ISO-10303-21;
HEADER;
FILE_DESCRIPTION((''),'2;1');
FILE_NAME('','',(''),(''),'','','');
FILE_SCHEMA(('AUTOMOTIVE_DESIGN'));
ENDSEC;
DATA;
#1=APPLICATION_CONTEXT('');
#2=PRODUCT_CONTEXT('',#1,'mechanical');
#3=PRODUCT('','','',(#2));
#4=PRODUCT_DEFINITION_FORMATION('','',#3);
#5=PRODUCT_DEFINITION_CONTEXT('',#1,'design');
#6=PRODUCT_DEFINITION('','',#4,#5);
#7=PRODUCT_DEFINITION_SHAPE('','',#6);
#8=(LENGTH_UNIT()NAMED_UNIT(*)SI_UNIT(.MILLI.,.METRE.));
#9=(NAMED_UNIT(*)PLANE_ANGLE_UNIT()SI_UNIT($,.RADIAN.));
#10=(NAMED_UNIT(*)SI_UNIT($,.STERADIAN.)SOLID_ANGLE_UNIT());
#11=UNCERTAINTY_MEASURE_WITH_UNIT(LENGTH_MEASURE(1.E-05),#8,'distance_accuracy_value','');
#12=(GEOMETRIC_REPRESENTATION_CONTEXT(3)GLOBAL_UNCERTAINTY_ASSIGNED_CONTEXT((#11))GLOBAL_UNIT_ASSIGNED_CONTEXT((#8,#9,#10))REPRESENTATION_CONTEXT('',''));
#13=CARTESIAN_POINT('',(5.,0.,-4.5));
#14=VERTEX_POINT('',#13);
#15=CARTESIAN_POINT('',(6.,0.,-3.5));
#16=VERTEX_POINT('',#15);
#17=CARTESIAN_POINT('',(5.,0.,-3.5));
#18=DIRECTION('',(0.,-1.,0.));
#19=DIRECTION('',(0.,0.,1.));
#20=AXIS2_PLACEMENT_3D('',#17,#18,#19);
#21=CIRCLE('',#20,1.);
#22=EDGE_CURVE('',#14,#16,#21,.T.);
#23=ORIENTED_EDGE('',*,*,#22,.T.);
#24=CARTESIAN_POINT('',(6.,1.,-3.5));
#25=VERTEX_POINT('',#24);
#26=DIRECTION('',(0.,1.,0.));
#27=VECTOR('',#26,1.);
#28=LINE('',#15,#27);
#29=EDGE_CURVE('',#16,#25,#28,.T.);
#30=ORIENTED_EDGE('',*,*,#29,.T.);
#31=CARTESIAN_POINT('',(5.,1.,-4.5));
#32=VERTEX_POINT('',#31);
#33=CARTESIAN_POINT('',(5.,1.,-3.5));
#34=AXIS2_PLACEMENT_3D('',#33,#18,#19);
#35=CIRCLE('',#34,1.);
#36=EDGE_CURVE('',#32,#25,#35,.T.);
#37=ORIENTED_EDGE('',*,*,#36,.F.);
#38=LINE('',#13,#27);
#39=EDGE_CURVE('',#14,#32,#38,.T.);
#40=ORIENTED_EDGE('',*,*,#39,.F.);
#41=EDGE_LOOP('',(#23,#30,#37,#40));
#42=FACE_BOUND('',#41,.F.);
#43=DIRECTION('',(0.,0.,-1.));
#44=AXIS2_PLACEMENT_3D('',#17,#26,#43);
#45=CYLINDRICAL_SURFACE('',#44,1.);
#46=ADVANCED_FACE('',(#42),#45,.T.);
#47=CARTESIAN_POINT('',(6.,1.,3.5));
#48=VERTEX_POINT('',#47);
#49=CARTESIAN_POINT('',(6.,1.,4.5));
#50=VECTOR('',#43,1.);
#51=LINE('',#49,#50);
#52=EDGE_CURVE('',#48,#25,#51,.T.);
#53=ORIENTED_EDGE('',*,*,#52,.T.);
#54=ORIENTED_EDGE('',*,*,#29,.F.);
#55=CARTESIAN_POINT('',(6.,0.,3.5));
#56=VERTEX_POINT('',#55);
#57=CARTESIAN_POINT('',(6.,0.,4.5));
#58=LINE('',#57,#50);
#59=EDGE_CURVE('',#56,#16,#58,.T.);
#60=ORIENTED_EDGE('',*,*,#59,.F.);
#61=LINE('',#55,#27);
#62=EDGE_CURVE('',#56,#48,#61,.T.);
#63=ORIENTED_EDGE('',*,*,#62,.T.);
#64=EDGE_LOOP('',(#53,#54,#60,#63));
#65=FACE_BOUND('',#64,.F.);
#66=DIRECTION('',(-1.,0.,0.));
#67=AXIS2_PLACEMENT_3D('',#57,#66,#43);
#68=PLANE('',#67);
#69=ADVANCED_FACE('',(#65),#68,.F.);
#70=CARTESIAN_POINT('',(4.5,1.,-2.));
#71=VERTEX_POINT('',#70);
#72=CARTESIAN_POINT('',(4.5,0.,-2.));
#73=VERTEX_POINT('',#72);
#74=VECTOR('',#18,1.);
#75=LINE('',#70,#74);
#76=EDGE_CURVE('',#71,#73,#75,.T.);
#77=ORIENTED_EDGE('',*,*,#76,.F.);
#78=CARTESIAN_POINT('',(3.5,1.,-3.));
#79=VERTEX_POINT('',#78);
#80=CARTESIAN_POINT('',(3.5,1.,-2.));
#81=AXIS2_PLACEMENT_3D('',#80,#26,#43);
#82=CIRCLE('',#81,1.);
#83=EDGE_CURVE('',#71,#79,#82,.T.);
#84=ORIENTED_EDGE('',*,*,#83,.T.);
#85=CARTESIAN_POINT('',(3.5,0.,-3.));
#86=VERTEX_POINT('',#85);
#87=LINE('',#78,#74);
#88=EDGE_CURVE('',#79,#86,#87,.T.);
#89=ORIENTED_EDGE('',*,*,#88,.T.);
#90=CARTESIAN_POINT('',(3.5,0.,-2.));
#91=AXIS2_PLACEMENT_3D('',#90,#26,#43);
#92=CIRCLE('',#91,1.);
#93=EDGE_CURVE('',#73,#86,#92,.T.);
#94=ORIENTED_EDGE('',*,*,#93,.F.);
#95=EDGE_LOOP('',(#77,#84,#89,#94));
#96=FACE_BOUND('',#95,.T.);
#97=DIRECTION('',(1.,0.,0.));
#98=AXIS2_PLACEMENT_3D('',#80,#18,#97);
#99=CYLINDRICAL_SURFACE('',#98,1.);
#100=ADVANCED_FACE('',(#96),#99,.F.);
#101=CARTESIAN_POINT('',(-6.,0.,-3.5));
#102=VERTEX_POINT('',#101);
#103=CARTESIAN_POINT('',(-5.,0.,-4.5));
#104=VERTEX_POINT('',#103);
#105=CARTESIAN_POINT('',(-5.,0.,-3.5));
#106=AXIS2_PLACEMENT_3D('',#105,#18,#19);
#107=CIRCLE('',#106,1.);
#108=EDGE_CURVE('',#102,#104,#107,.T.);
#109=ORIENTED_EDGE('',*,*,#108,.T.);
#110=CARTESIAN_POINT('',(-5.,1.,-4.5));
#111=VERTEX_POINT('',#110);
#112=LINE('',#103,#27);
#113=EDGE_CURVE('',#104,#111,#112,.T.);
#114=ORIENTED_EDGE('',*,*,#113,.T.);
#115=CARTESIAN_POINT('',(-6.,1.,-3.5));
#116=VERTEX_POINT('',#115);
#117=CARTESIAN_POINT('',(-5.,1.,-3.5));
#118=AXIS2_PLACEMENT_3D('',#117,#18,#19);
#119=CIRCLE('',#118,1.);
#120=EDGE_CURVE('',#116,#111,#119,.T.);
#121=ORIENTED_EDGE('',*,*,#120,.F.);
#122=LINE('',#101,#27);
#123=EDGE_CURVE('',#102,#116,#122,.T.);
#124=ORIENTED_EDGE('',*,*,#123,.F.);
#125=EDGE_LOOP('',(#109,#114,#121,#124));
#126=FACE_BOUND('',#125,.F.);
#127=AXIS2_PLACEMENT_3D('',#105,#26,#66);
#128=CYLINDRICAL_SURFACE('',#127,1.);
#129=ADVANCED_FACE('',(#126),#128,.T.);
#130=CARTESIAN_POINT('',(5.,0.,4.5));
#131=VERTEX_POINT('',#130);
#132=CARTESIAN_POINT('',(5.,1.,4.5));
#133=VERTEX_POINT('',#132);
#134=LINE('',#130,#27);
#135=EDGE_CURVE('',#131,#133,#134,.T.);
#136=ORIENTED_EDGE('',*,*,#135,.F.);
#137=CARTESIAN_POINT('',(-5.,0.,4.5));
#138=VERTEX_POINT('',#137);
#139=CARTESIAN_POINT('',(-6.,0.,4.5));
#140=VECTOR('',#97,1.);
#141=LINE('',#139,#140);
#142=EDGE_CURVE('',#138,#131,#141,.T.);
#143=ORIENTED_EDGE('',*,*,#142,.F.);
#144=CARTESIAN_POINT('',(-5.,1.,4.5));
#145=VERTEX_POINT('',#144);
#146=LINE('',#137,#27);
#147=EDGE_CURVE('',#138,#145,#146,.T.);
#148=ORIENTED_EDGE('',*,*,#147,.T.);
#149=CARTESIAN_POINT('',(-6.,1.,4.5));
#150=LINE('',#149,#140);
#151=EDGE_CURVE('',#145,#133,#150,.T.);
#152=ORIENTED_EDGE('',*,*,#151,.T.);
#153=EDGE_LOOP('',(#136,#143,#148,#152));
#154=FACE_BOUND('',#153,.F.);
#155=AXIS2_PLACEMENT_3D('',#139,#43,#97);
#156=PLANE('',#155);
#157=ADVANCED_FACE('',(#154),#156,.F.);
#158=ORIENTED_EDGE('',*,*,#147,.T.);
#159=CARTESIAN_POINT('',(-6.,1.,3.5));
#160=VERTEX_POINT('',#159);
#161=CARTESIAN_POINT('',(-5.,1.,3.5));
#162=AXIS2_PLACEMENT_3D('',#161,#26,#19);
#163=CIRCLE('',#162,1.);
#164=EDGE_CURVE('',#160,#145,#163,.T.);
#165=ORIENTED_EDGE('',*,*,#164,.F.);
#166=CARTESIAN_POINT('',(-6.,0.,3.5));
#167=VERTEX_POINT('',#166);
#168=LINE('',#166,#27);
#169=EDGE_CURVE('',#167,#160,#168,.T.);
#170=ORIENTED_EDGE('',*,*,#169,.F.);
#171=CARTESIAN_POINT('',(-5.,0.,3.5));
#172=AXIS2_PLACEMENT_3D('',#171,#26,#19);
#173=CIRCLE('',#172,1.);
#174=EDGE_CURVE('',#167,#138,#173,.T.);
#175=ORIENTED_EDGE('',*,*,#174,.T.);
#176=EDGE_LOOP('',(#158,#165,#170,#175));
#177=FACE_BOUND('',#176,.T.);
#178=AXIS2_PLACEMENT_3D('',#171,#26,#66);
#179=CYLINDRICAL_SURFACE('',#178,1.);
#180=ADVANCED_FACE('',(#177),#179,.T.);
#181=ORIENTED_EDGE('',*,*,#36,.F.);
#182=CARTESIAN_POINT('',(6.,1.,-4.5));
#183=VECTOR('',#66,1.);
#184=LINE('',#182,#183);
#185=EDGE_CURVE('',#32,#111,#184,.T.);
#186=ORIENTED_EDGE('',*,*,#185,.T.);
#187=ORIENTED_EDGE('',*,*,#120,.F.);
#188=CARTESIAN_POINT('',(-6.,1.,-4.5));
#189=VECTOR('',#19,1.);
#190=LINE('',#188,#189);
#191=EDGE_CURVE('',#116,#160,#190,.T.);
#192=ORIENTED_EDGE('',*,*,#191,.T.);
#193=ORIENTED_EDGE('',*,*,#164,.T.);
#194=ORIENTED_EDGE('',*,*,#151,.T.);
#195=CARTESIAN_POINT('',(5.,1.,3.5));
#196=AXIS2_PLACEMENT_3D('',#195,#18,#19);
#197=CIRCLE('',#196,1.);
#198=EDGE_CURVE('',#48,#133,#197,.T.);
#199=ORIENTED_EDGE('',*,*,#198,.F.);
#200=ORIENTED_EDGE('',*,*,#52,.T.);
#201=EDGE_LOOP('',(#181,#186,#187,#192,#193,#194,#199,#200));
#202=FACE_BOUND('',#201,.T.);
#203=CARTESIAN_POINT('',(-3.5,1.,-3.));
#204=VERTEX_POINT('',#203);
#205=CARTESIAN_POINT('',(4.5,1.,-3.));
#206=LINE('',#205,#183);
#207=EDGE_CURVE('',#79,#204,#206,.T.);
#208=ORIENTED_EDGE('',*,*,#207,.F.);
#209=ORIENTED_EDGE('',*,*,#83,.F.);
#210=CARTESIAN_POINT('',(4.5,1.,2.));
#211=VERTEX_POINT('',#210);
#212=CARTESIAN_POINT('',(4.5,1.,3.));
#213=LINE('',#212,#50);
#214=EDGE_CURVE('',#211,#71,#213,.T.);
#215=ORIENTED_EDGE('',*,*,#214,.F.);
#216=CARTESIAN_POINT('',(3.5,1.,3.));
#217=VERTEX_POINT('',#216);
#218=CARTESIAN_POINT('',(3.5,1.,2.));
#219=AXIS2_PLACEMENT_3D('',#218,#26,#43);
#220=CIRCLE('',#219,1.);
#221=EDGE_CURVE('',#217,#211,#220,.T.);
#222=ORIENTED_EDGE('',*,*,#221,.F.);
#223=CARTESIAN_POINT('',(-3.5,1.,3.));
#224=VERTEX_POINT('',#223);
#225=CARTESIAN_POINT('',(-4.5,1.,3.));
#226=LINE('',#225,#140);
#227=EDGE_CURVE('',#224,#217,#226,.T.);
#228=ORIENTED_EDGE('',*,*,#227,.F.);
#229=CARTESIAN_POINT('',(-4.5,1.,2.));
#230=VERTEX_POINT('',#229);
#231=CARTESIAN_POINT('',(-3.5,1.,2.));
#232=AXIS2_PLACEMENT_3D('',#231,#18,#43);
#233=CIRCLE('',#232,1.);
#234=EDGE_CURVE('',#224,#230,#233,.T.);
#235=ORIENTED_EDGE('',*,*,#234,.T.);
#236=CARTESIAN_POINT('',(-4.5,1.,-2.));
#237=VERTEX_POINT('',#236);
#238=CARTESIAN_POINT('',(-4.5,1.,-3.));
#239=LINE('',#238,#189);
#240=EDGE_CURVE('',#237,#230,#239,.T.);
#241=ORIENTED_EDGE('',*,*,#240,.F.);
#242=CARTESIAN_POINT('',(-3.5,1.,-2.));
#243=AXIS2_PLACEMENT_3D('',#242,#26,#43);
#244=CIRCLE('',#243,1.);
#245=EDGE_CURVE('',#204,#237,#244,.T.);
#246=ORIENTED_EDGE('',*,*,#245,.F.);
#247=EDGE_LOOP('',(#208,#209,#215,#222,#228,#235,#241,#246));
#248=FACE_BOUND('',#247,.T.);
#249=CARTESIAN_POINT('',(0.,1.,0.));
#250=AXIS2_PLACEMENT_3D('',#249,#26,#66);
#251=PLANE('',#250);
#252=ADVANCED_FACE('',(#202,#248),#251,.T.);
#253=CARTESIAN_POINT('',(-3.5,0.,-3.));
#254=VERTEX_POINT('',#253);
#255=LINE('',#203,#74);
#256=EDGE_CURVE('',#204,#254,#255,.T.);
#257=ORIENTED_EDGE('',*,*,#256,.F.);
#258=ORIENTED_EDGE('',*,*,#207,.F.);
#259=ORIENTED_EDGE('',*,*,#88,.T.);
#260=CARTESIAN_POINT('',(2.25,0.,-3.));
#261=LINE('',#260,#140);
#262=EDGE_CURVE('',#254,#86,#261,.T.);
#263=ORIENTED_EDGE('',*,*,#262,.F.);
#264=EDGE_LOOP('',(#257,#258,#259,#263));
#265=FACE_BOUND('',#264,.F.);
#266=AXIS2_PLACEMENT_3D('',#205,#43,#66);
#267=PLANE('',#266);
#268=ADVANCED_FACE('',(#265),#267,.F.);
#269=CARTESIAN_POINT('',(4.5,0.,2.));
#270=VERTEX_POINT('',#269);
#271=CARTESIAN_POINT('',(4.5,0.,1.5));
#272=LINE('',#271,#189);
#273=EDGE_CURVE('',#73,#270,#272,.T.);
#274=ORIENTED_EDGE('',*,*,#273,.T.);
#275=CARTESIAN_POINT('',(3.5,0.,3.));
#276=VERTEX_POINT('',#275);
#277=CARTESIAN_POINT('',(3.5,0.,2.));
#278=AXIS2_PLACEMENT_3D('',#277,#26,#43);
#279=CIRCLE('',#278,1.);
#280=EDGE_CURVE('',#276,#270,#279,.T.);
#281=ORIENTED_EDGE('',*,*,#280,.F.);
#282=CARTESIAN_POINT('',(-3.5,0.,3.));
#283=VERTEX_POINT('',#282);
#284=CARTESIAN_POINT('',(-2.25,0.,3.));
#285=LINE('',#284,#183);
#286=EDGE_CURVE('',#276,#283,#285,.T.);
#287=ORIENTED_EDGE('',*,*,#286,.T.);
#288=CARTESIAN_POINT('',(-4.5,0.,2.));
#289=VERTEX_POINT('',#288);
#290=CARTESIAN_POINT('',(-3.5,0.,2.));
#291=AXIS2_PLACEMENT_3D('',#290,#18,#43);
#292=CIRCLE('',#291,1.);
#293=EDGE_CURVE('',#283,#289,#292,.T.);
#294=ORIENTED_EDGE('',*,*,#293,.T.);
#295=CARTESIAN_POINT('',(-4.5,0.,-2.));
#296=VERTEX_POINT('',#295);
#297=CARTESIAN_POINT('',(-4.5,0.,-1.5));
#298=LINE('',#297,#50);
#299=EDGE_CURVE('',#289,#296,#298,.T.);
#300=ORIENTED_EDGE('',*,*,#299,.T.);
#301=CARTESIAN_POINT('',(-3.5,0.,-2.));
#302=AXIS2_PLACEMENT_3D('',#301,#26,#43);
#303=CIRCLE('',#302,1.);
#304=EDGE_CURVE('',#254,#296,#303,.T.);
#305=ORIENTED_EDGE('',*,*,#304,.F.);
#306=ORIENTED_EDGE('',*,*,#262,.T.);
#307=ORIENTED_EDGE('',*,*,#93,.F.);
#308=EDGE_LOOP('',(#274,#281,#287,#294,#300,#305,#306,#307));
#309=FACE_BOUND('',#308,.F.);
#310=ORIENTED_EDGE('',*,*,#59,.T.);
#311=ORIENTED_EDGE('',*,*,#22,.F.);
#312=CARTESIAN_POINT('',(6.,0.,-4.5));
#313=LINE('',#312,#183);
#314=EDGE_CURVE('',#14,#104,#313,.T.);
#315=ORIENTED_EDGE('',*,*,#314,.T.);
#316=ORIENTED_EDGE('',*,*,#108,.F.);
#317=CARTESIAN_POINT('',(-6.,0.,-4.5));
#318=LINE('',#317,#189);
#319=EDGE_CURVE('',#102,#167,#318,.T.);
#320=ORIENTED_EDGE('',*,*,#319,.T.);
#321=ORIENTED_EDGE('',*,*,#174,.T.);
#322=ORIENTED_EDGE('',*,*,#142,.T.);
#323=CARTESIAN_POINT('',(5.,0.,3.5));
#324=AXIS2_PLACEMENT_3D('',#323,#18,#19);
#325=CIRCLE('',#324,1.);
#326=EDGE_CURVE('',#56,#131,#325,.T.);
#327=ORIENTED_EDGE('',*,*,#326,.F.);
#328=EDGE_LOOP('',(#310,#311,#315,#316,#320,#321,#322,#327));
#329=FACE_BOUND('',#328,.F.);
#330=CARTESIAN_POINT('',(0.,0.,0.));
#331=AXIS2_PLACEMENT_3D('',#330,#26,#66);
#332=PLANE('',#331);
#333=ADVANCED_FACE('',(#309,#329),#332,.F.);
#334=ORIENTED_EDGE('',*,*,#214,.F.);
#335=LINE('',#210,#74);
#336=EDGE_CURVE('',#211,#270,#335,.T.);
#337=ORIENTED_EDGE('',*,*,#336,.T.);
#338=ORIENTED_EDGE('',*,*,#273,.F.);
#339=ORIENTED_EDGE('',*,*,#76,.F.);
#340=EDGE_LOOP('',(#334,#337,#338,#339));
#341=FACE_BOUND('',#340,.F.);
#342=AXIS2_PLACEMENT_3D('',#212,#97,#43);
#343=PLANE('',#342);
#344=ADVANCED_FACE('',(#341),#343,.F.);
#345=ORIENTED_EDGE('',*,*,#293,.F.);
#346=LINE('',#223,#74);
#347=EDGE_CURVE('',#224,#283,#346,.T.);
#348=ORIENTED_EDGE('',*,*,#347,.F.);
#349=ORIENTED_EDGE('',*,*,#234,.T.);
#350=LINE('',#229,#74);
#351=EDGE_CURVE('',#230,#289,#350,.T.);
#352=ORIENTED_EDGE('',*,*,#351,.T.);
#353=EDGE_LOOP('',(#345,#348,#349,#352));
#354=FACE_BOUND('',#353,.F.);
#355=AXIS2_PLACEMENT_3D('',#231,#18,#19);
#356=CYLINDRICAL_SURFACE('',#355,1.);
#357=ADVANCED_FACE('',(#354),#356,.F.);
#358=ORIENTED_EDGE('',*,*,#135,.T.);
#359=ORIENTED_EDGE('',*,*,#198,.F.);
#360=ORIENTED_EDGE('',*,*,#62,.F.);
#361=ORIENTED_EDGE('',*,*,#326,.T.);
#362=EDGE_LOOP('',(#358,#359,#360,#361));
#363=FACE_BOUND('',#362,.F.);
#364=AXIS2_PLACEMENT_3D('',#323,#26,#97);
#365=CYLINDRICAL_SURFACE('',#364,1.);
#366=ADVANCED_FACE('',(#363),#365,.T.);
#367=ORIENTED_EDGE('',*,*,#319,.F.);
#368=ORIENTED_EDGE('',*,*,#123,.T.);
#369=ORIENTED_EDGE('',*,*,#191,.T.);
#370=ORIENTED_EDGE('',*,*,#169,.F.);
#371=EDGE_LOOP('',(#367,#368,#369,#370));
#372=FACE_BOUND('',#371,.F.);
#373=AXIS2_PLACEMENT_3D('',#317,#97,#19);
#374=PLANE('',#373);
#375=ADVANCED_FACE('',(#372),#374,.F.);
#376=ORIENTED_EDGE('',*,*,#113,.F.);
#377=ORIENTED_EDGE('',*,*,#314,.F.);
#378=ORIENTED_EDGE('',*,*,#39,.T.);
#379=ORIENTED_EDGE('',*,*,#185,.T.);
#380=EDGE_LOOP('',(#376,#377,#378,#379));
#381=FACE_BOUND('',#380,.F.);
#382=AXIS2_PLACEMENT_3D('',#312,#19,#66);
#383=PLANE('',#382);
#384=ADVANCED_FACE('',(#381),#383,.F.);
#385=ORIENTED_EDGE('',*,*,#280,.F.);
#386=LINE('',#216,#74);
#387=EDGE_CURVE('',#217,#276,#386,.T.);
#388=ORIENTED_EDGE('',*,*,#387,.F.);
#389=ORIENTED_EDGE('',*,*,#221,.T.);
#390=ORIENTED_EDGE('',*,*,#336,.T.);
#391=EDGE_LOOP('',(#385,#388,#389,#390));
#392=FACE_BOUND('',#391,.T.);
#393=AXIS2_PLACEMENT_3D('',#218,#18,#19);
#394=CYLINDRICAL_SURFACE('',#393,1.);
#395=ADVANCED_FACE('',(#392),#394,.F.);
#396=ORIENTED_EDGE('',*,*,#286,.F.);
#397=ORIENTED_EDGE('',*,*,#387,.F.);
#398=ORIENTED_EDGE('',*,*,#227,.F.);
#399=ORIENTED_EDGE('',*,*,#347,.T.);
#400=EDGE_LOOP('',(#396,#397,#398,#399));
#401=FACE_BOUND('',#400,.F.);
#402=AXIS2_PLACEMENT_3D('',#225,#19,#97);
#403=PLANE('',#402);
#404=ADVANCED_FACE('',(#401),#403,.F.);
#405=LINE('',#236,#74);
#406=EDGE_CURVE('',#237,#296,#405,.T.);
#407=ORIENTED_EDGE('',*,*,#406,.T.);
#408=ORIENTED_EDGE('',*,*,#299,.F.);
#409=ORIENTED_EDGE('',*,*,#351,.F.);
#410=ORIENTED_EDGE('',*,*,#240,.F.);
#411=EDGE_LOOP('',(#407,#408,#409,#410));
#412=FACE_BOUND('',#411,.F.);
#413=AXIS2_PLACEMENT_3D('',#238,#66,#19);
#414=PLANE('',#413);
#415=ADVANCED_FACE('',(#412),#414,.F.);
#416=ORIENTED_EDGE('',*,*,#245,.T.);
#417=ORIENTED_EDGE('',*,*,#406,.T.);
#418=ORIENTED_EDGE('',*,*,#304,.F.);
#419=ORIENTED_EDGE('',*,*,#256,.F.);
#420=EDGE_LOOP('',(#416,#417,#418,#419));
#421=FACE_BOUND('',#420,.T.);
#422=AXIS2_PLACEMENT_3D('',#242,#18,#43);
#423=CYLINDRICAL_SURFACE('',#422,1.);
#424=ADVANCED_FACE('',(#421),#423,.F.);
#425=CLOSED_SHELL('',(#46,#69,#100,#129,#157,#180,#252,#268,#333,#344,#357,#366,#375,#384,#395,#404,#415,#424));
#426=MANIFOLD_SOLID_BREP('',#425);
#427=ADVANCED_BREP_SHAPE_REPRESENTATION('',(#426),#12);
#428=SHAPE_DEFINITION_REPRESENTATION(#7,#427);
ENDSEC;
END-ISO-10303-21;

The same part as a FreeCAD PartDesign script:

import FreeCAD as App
import Part
import Sketcher


def edges_at(feature, points):
    """Names of the edges that pass closest to the given points."""
    edges = feature.Shape.Edges
    near = lambda p: min(range(len(edges)), key=lambda i: edges[i].distToShape(Part.Vertex(*p))[0])
    return sorted({f"Edge{near(p) + 1}" for p in points})


def add_polygon(sketch, points):
    """Adds a closed chain of lines whose ends are joined by coincident constraints."""
    first, n = sketch.GeometryCount, len(points)
    for a, b in zip(points, points[1:] + points[:1]):
        sketch.addGeometry(Part.LineSegment(App.Vector(*a, 0), App.Vector(*b, 0)), False)
    for i in range(n):
        sketch.addConstraint(Sketcher.Constraint("Coincident", first + i, 2, first + (i + 1) % n, 1))

doc = App.newDocument("Part")
body = doc.addObject("PartDesign::Body", "Body")

# Sketch on XZ plane
sketch1 = body.newObject("Sketcher::SketchObject", "Sketch")
sketch1.AttachmentSupport = (doc.getObject("XZ_Plane"), [""])
sketch1.MapMode = "FlatFace"
add_polygon(sketch1, [(-6, -4), (-6, 4), (6, 4), (6, -4)])  # lines 0-3
sketch1.addConstraint([
    Sketcher.Constraint("Vertical", 0),
    Sketcher.Constraint("Horizontal", 1),
    Sketcher.Constraint("Vertical", 2),
    Sketcher.Constraint("Horizontal", 3),
    Sketcher.Constraint("Symmetric", 0, 2, 2, 2, -1, 1),
    Sketcher.Constraint("DistanceX", 1, 1, 1, 2, 12.0),
    Sketcher.Constraint("DistanceY", 0, 1, 0, 2, 9.0),
])
pad1 = body.newObject("PartDesign::Pad", "Pad")
pad1.Profile = sketch1
pad1.Length = 1
pad1.Reversed = True
doc.recompute()

fillet = body.newObject("PartDesign::Fillet", "Fillet")
fillet.Base = (pad1, edges_at(pad1, [
    (6, 0.5, 4.5),
    (6, 0.5, -4.5),
    (-6, 0.5, -4.5),
    (-6, 0.5, 4.5),
]))
fillet.Radius = 1

# Sketch on XZ plane
sketch2 = body.newObject("Sketcher::SketchObject", "Sketch001")
sketch2.AttachmentSupport = (doc.getObject("XZ_Plane"), [""])
sketch2.MapMode = "FlatFace"
sketch2.AttachmentOffset = App.Placement(App.Vector(0, 0, -1), App.Rotation())
add_polygon(sketch2, [(-4, -3), (-4, 3), (4, 3), (4, -3)])  # lines 0-3
sketch2.addConstraint([
    Sketcher.Constraint("Vertical", 0),
    Sketcher.Constraint("Horizontal", 1),
    Sketcher.Constraint("Vertical", 2),
    Sketcher.Constraint("Horizontal", 3),
    Sketcher.Constraint("Symmetric", 0, 2, 2, 2, -1, 1),
    Sketcher.Constraint("DistanceX", 1, 1, 1, 2, 9.0),
    Sketcher.Constraint("DistanceY", 0, 1, 0, 2, 6.0),
])
pocket1 = body.newObject("PartDesign::Pocket", "Pocket")
pocket1.Profile = sketch2
pocket1.Type = "UpToFirst"
pocket1.Reversed = True
doc.recompute()

fillet2 = body.newObject("PartDesign::Fillet", "Fillet001")
fillet2.Base = (pocket1, edges_at(pocket1, [
    (-4.5, 0.5, 3),
    (-4.5, 0.5, -3),
    (4.5, 0.5, 3),
    (4.5, 0.5, -3),
]))
fillet2.Radius = 1

doc.recompute()
